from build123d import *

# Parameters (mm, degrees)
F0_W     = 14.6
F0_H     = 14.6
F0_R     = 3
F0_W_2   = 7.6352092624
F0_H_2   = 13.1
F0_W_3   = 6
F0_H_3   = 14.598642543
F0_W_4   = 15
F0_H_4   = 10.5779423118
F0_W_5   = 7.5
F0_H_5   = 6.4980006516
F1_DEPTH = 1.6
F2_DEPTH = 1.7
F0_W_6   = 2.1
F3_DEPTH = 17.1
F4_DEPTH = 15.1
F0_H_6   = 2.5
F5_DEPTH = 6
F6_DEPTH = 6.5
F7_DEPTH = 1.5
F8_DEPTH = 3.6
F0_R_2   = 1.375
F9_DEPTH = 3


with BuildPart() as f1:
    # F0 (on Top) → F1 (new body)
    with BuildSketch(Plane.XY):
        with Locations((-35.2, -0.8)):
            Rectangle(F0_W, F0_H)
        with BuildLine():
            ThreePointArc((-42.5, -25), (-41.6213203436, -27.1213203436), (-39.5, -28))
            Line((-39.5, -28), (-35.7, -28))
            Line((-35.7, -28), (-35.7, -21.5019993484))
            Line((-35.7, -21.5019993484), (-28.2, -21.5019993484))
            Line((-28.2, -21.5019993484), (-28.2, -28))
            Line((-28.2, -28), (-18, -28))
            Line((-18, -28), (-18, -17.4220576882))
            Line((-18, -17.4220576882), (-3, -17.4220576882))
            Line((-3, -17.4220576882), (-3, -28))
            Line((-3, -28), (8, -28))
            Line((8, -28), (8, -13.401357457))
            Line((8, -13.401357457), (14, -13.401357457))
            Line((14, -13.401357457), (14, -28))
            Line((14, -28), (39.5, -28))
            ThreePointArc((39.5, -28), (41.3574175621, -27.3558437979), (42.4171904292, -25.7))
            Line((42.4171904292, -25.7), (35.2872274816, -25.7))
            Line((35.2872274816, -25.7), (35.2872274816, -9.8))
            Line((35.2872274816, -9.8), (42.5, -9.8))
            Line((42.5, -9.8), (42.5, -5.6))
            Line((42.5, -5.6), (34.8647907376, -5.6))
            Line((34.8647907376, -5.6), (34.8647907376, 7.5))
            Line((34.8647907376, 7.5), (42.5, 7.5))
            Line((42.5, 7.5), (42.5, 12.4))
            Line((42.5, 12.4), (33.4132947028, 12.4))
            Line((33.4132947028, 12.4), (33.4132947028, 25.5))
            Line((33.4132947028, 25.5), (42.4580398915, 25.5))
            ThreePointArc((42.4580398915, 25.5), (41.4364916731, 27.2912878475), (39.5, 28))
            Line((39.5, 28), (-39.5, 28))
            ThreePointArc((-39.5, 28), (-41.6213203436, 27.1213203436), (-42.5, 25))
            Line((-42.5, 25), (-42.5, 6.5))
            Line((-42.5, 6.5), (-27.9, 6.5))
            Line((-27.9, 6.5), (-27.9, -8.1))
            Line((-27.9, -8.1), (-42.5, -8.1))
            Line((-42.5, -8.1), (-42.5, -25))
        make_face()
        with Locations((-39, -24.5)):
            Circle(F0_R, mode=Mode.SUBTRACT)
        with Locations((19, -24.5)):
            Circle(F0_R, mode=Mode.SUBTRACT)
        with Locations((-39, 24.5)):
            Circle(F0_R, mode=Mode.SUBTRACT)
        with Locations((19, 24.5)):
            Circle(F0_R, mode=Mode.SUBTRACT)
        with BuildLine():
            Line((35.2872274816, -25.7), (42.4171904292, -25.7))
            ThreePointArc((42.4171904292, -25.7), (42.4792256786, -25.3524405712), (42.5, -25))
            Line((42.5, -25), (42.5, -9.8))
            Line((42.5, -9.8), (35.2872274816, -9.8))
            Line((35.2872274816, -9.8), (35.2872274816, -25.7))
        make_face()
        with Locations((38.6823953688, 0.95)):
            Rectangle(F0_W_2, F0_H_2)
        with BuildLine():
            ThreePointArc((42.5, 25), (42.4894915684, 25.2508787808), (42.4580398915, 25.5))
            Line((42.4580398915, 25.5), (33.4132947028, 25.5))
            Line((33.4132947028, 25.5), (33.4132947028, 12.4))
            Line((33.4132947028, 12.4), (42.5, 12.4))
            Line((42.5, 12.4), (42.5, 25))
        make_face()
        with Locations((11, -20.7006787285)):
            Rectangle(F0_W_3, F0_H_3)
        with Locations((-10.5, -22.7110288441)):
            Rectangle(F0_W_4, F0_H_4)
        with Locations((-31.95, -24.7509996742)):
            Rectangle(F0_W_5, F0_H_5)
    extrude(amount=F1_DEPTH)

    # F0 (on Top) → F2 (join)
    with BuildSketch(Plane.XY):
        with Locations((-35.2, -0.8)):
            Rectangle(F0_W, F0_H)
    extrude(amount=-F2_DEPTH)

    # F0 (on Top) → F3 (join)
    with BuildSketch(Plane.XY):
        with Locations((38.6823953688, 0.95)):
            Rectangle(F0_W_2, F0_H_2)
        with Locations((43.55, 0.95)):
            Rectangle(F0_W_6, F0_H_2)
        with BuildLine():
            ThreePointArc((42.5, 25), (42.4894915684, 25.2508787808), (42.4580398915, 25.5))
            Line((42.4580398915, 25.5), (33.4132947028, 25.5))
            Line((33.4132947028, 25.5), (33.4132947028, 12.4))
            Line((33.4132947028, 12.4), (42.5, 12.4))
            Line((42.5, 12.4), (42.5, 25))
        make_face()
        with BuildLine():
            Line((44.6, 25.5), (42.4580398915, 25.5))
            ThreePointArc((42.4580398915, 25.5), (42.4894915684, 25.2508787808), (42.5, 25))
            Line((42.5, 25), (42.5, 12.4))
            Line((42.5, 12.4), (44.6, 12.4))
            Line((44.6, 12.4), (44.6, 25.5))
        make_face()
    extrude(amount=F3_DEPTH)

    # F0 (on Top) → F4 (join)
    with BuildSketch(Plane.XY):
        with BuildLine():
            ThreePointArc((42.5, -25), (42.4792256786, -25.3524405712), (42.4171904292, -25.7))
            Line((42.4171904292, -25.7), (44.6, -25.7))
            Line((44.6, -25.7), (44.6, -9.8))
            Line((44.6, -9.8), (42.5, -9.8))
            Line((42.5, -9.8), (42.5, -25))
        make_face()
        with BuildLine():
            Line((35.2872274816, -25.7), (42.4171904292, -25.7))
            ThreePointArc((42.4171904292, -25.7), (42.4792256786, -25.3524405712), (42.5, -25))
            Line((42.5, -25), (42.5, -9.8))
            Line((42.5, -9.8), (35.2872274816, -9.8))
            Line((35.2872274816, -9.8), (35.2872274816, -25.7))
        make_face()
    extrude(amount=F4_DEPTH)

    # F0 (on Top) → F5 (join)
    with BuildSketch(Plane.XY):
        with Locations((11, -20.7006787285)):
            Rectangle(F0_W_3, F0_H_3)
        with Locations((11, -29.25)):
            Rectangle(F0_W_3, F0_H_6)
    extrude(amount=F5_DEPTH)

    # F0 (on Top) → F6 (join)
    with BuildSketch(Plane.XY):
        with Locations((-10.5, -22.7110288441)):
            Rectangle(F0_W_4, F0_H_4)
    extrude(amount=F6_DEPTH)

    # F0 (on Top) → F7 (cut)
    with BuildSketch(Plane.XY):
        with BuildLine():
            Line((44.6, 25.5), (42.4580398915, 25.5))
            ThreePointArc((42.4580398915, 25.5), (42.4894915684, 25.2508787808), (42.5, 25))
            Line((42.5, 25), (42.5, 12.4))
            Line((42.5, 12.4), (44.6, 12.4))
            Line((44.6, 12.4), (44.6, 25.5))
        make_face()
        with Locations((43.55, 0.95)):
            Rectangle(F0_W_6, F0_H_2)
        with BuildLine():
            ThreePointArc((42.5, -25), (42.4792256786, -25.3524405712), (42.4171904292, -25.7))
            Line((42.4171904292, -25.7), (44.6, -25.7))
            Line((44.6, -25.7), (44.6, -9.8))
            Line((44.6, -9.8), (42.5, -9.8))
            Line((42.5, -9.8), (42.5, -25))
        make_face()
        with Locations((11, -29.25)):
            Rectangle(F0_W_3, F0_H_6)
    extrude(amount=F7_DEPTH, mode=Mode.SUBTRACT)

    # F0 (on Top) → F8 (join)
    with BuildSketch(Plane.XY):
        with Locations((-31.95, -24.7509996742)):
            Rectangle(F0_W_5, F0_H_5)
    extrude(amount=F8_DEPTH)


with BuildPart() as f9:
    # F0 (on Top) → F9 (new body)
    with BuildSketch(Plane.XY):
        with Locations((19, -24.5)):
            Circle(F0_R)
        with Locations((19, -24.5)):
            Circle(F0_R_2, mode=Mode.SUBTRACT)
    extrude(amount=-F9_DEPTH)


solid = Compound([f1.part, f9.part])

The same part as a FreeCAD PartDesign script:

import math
import FreeCAD as App
import Part
import Sketcher

V = App.Vector
Q = App.Units.Quantity


def add_polygon(sketch, points):
    """Adds a closed chain of lines whose ends are joined by coincident constraints."""
    first, n = sketch.GeometryCount, len(points)
    for a, b in zip(points, points[1:] + points[:1]):
        sketch.addGeometry(Part.LineSegment(App.Vector(*a, 0), App.Vector(*b, 0)), False)
    for i in range(n):
        sketch.addConstraint(Sketcher.Constraint("Coincident", first + i, 2, first + (i + 1) % n, 1))

doc = App.newDocument("Part")
body = doc.addObject("PartDesign::Body", "Body")

# Sketch on XY plane
sketch1 = doc.addObject("Sketcher::SketchObject", "Sketch")
body.addObject(sketch1)
sketch1.AttachmentSupport = (doc.XY_Plane, [""])
sketch1.MapMode = "FlatFace"
sketch1.addGeometry(Part.ArcOfCircle(Part.Circle(V(-39.5, -25, 0), V(0, 0, 1), 3), math.radians(180), math.radians(270)), False)
sketch1.addGeometry(Part.LineSegment(V(-39.5, -28, 0), V(39.5, -28, 0)), False)
sketch1.addGeometry(Part.ArcOfCircle(Part.Circle(V(39.5, -25, 0), V(0, 0, 1), 3), math.radians(-90), math.radians(-13.493399)), False)
sketch1.addGeometry(Part.ArcOfCircle(Part.Circle(V(39.5, -25, 0), V(0, 0, 1), 3), math.radians(-13.493399), math.radians(0)), False)
sketch1.addGeometry(Part.LineSegment(V(42.5, -25, 0), V(42.5, 25, 0)), False)
sketch1.addGeometry(Part.ArcOfCircle(Part.Circle(V(39.5, 25, 0), V(0, 0, 1), 3), math.radians(0), math.radians(9.594068)), False)
sketch1.addGeometry(Part.ArcOfCircle(Part.Circle(V(39.5, 25, 0), V(0, 0, 1), 3), math.radians(9.594068), math.radians(90)), False)
sketch1.addGeometry(Part.LineSegment(V(39.5, 28, 0), V(-39.5, 28, 0)), False)
sketch1.addGeometry(Part.ArcOfCircle(Part.Circle(V(-39.5, 25, 0), V(0, 0, 1), 3), math.radians(90), math.radians(180)), False)
sketch1.addGeometry(Part.LineSegment(V(-42.5, 25, 0), V(-42.5, -25, 0)), False)
sketch1.addGeometry(Part.Circle(V(-39, -24.5, 0), V(0, 0, 1), 3), False)
sketch1.addGeometry(Part.Circle(V(19, -24.5, 0), V(0, 0, 1), 3), False)
sketch1.addGeometry(Part.Circle(V(-39, 24.5, 0), V(0, 0, 1), 3), False)
sketch1.addGeometry(Part.Circle(V(19, 24.5, 0), V(0, 0, 1), 3), False)
sketch1.addConstraint(Sketcher.Constraint("Tangent", 0, 2, 1, 1))
sketch1.addConstraint(Sketcher.Constraint("Tangent", 1, 2, 2, 1))
sketch1.addConstraint(Sketcher.Constraint("Tangent", 2, 2, 3, 1))
sketch1.addConstraint(Sketcher.Constraint("Tangent", 3, 2, 4, 1))
sketch1.addConstraint(Sketcher.Constraint("Tangent", 4, 2, 5, 1))
sketch1.addConstraint(Sketcher.Constraint("Tangent", 5, 2, 6, 1))
sketch1.addConstraint(Sketcher.Constraint("Tangent", 6, 2, 7, 1))
sketch1.addConstraint(Sketcher.Constraint("Tangent", 7, 2, 8, 1))
sketch1.addConstraint(Sketcher.Constraint("Tangent", 8, 2, 9, 1))
sketch1.addConstraint(Sketcher.Constraint("Tangent", 9, 2, 0, 1))
sketch1.addConstraint(Sketcher.Constraint("Horizontal", 1))
sketch1.addConstraint(Sketcher.Constraint("Vertical", 4))
sketch1.addConstraint(Sketcher.Constraint("Horizontal", 7))
sketch1.addConstraint(Sketcher.Constraint("Vertical", 9))
sketch1.addConstraint(Sketcher.Constraint("Equal", 0, 2))
sketch1.addConstraint(Sketcher.Constraint("Equal", 2, 3))
sketch1.addConstraint(Sketcher.Constraint("Equal", 3, 5))
sketch1.addConstraint(Sketcher.Constraint("Equal", 5, 6))
sketch1.addConstraint(Sketcher.Constraint("Equal", 6, 8))
sketch1.addConstraint(Sketcher.Constraint("Equal", 8, 10))
sketch1.addConstraint(Sketcher.Constraint("Equal", 10, 11))
sketch1.addConstraint(Sketcher.Constraint("Equal", 11, 12))
sketch1.addConstraint(Sketcher.Constraint("Equal", 12, 13))
sketch1.addConstraint(Sketcher.Constraint("Symmetric", 0, 3, 5, 3, -1, 1))
sketch1.addConstraint(Sketcher.Constraint("Symmetric", 10, 3, 12, 3, -1))
sketch1.addConstraint(Sketcher.Constraint("Symmetric", 11, 3, 13, 3, -1))
sketch1.addConstraint(Sketcher.Constraint("Horizontal", 10, 3, 11, 3))
sketch1.addConstraint(Sketcher.Constraint("Diameter", 10, Q("6 mm")))
sketch1.addConstraint(Sketcher.Constraint("DistanceX", 1, 1, 1, 2, Q("79 mm")))
sketch1.addConstraint(Sketcher.Constraint("DistanceY", 4, 1, 4, 2, Q("50 mm")))
sketch1.addConstraint(Sketcher.Constraint("DistanceX", 10, 3, -1, 1, Q("39 mm")))
sketch1.addConstraint(Sketcher.Constraint("DistanceX", -1, 1, 11, 3, Q("19 mm")))
sketch1.addConstraint(Sketcher.Constraint("DistanceY", 10, 3, 12, 3, Q("49 mm")))
sketch1.addConstraint(Sketcher.Constraint("DistanceY", 13, 3, 5, 2, Q("1 mm")))
sketch1.addConstraint(Sketcher.Constraint("DistanceY", 2, 2, -1, 1, Q("25.7 mm")))
pad1 = doc.addObject("PartDesign::Pad", "Pad")
body.addObject(pad1)
pad1.Profile = sketch1
pad1.Length = 1.6

# Sketch on XY plane
sketch2 = doc.addObject("Sketcher::SketchObject", "Sketch001")
body.addObject(sketch2)
sketch2.AttachmentSupport = (doc.XY_Plane, [""])
sketch2.MapMode = "FlatFace"
add_polygon(sketch2, [(-42.5, 6.5), (-42.5, -8.1), (-27.9, -8.1), (-27.9, 6.5)])  # lines 0-3
sketch2.addConstraint(Sketcher.Constraint("Vertical", 0))
sketch2.addConstraint(Sketcher.Constraint("Horizontal", 1))
sketch2.addConstraint(Sketcher.Constraint("Vertical", 2))
sketch2.addConstraint(Sketcher.Constraint("Horizontal", 3))
sketch2.addConstraint(Sketcher.Constraint("Equal", 3, 0))
sketch2.addConstraint(Sketcher.Constraint("DistanceX", 1, 1, 1, 2, Q("14.6 mm")))
sketch2.addConstraint(Sketcher.Constraint("DistanceX", 0, 2, -1, 1, Q("42.5 mm")))
sketch2.addConstraint(Sketcher.Constraint("DistanceY", 0, 2, -1, 1, Q("8.1 mm")))
pad2 = doc.addObject("PartDesign::Pad", "Pad001")
body.addObject(pad2)
pad2.Profile = sketch2
pad2.Length = 1.7
pad2.Reversed = True

# Sketch on XY plane
sketch3 = doc.addObject("Sketcher::SketchObject", "Sketch002")
body.addObject(sketch3)
sketch3.AttachmentSupport = (doc.XY_Plane, [""])
sketch3.MapMode = "FlatFace"
add_polygon(sketch3, [(34.864791, 7.5), (34.864791, -5.6), (44.6, -5.6), (44.6, 7.5)])  # lines 0-3
add_polygon(sketch3, [(33.413295, 25.5), (33.413295, 12.4), (44.6, 12.4), (44.6, 25.5)])  # lines 4-7
sketch3.addConstraint(Sketcher.Constraint("Vertical", 0))
sketch3.addConstraint(Sketcher.Constraint("Horizontal", 1))
sketch3.addConstraint(Sketcher.Constraint("Vertical", 2))
sketch3.addConstraint(Sketcher.Constraint("Horizontal", 3))
sketch3.addConstraint(Sketcher.Constraint("Vertical", 4))
sketch3.addConstraint(Sketcher.Constraint("Horizontal", 5))
sketch3.addConstraint(Sketcher.Constraint("Vertical", 6))
sketch3.addConstraint(Sketcher.Constraint("Horizontal", 7))
sketch3.addConstraint(Sketcher.Constraint("Vertical", 2, 2, 5, 2))
sketch3.addConstraint(Sketcher.Constraint("Equal", 2, 4))
sketch3.addConstraint(Sketcher.Constraint("DistanceY", 0, 2, 0, 1, Q("13.1 mm")))
sketch3.addConstraint(Sketcher.Constraint("DistanceY", 0, 2, 4, 2, Q("18 mm")))
sketch3.addConstraint(Sketcher.Constraint("DistanceY", 0, 2, -1, 1, Q("5.6 mm")))
sketch3.addConstraint(Sketcher.Constraint("DistanceX", -1, 1, 1, 2, Q("44.6 mm")))
sketch3.addConstraint(Sketcher.Constraint("DistanceX", 1, 1, 1, 2, Q("9.735209 mm")))
sketch3.addConstraint(Sketcher.Constraint("DistanceX", 5, 1, 5, 2, Q("11.186705 mm")))
pad3 = doc.addObject("PartDesign::Pad", "Pad002")
body.addObject(pad3)
pad3.Profile = sketch3
pad3.Length = 17.1

# Sketch on XY plane
sketch4 = doc.addObject("Sketcher::SketchObject", "Sketch003")
body.addObject(sketch4)
sketch4.AttachmentSupport = (doc.XY_Plane, [""])
sketch4.MapMode = "FlatFace"
add_polygon(sketch4, [(44.6, -25.7), (44.6, -9.8), (35.287227, -9.8), (35.287227, -25.7)])  # lines 0-3
sketch4.addConstraint(Sketcher.Constraint("Vertical", 0))
sketch4.addConstraint(Sketcher.Constraint("Horizontal", 1))
sketch4.addConstraint(Sketcher.Constraint("Vertical", 2))
sketch4.addConstraint(Sketcher.Constraint("Horizontal", 3))
sketch4.addConstraint(Sketcher.Constraint("DistanceY", 0, 1, 0, 2, Q("15.9 mm")))
sketch4.addConstraint(Sketcher.Constraint("DistanceX", -1, 1, 0, 2, Q("44.6 mm")))
sketch4.addConstraint(Sketcher.Constraint("DistanceY", 0, 2, -1, 1, Q("9.8 mm")))
sketch4.addConstraint(Sketcher.Constraint("DistanceX", 1, 2, 1, 1, Q("9.312773 mm")))
pad4 = doc.addObject("PartDesign::Pad", "Pad003")
body.addObject(pad4)
pad4.Profile = sketch4
pad4.Length = 15.1

# Sketch on XY plane
sketch5 = doc.addObject("Sketcher::SketchObject", "Sketch004")
body.addObject(sketch5)
sketch5.AttachmentSupport = (doc.XY_Plane, [""])
sketch5.MapMode = "FlatFace"
add_polygon(sketch5, [(8, -13.401357), (8, -30.5), (14, -30.5), (14, -13.401357)])  # lines 0-3
sketch5.addConstraint(Sketcher.Constraint("Vertical", 0))
sketch5.addConstraint(Sketcher.Constraint("Horizontal", 1))
sketch5.addConstraint(Sketcher.Constraint("Vertical", 2))
sketch5.addConstraint(Sketcher.Constraint("Horizontal", 3))
sketch5.addConstraint(Sketcher.Constraint("DistanceX", 1, 1, 1, 2, Q("6 mm")))
sketch5.addConstraint(Sketcher.Constraint("DistanceX", -1, 1, 0, 2, Q("8 mm")))
sketch5.addConstraint(Sketcher.Constraint("DistanceY", 0, 2, -1, 1, Q("30.5 mm")))
sketch5.addConstraint(Sketcher.Constraint("DistanceY", 0, 2, 0, 1, Q("17.098643 mm")))
pad5 = doc.addObject("PartDesign::Pad", "Pad004")
body.addObject(pad5)
pad5.Profile = sketch5
pad5.Length = 6

# Sketch on XY plane
sketch6 = doc.addObject("Sketcher::SketchObject", "Sketch005")
body.addObject(sketch6)
sketch6.AttachmentSupport = (doc.XY_Plane, [""])
sketch6.MapMode = "FlatFace"
add_polygon(sketch6, [(-18, -17.422058), (-18, -28), (-3, -28), (-3, -17.422058)])  # lines 0-3
sketch6.addConstraint(Sketcher.Constraint("Vertical", 0))
sketch6.addConstraint(Sketcher.Constraint("Horizontal", 1))
sketch6.addConstraint(Sketcher.Constraint("Vertical", 2))
sketch6.addConstraint(Sketcher.Constraint("Horizontal", 3))
sketch6.addConstraint(Sketcher.Constraint("DistanceX", 1, 1, 1, 2, Q("15 mm")))
sketch6.addConstraint(Sketcher.Constraint("DistanceX", 0, 2, -1, 1, Q("18 mm")))
sketch6.addConstraint(Sketcher.Constraint("DistanceY", 0, 2, -1, 1, Q("28 mm")))
sketch6.addConstraint(Sketcher.Constraint("DistanceY", 0, 2, 0, 1, Q("10.577942 mm")))
pad6 = doc.addObject("PartDesign::Pad", "Pad005")
body.addObject(pad6)
pad6.Profile = sketch6
pad6.Length = 6.5

# Sketch on XY plane
sketch7 = doc.addObject("Sketcher::SketchObject", "Sketch006")
body.addObject(sketch7)
sketch7.AttachmentSupport = (doc.XY_Plane, [""])
sketch7.MapMode = "FlatFace"
sketch7.addGeometry(Part.LineSegment(V(44.6, 25.5, 0), V(42.45804, 25.5, 0)), False)  # 0
sketch7.addGeometry(Part.ArcOfCircle(Part.Circle(V(39.5, 25, 0), V(0, 0, 1), 3), math.radians(0), math.radians(9.594068)), False)  # 1
sketch7.addGeometry(Part.LineSegment(V(42.5, 25, 0), V(42.5, 12.4, 0)), False)  # 2
sketch7.addGeometry(Part.LineSegment(V(42.5, 12.4, 0), V(44.6, 12.4, 0)), False)  # 3
sketch7.addGeometry(Part.LineSegment(V(44.6, 12.4, 0), V(44.6, 25.5, 0)), False)  # 4
add_polygon(sketch7, [(42.5, 7.5), (42.5, -5.6), (44.6, -5.6), (44.6, 7.5)])  # lines 5-8
sketch7.addGeometry(Part.ArcOfCircle(Part.Circle(V(39.5, -25, 0), V(0, 0, 1), 3), math.radians(-13.493399), math.radians(0)), False)  # 9
sketch7.addGeometry(Part.LineSegment(V(42.41719, -25.7, 0), V(44.6, -25.7, 0)), False)  # 10
sketch7.addGeometry(Part.LineSegment(V(44.6, -25.7, 0), V(44.6, -9.8, 0)), False)  # 11
sketch7.addGeometry(Part.LineSegment(V(44.6, -9.8, 0), V(42.5, -9.8, 0)), False)  # 12
sketch7.addGeometry(Part.LineSegment(V(42.5, -9.8, 0), V(42.5, -25, 0)), False)  # 13
add_polygon(sketch7, [(8, -28), (8, -30.5), (14, -30.5), (14, -28)])  # lines 14-17
sketch7.addConstraint(Sketcher.Constraint("Coincident", 0, 2, 1, 2))
sketch7.addConstraint(Sketcher.Constraint("Tangent", 1, 1, 2, 1))
sketch7.addConstraint(Sketcher.Constraint("Coincident", 2, 2, 3, 1))
sketch7.addConstraint(Sketcher.Constraint("Coincident", 3, 2, 4, 1))
sketch7.addConstraint(Sketcher.Constraint("Coincident", 4, 2, 0, 1))
sketch7.addConstraint(Sketcher.Constraint("Coincident", 9, 1, 10, 1))
sketch7.addConstraint(Sketcher.Constraint("Coincident", 10, 2, 11, 1))
sketch7.addConstraint(Sketcher.Constraint("Coincident", 11, 2, 12, 1))
sketch7.addConstraint(Sketcher.Constraint("Coincident", 12, 2, 13, 1))
sketch7.addConstraint(Sketcher.Constraint("Tangent", 13, 2, 9, 2))
sketch7.addConstraint(Sketcher.Constraint("Horizontal", 0))
sketch7.addConstraint(Sketcher.Constraint("Vertical", 2))
sketch7.addConstraint(Sketcher.Constraint("Horizontal", 3))
sketch7.addConstraint(Sketcher.Constraint("Vertical", 4))
sketch7.addConstraint(Sketcher.Constraint("Vertical", 5))
sketch7.addConstraint(Sketcher.Constraint("Horizontal", 6))
sketch7.addConstraint(Sketcher.Constraint("Vertical", 7))
sketch7.addConstraint(Sketcher.Constraint("Horizontal", 8))
sketch7.addConstraint(Sketcher.Constraint("Horizontal", 10))
sketch7.addConstraint(Sketcher.Constraint("Vertical", 11))
sketch7.addConstraint(Sketcher.Constraint("Horizontal", 12))
sketch7.addConstraint(Sketcher.Constraint("Vertical", 13))
sketch7.addConstraint(Sketcher.Constraint("Vertical", 14))
sketch7.addConstraint(Sketcher.Constraint("Horizontal", 15))
sketch7.addConstraint(Sketcher.Constraint("Vertical", 16))
sketch7.addConstraint(Sketcher.Constraint("Horizontal", 17))
sketch7.addConstraint(Sketcher.Constraint("Equal", 1, 9))
sketch7.addConstraint(Sketcher.Constraint("Symmetric", 1, 3, 9, 3, -1))
sketch7.addConstraint(Sketcher.Constraint("Vertical", 2, 2, 5, 2))
sketch7.addConstraint(Sketcher.Constraint("Vertical", 4, 2, 6, 2))
sketch7.addConstraint(Sketcher.Constraint("Vertical", 7, 2, 10, 2))
sketch7.addConstraint(Sketcher.Constraint("Equal", 4, 5))
sketch7.addConstraint(Sketcher.Constraint("Radius", 1, Q("3 mm")))
sketch7.addConstraint(Sketcher.Constraint("DistanceX", 15, 1, 15, 2, Q("6 mm")))
sketch7.addConstraint(Sketcher.Constraint("DistanceX", 3, 1, 3, 2, Q("2.1 mm")))
sketch7.addConstraint(Sketcher.Constraint("DistanceY", 2, 2, 2, 1, Q("12.6 mm")))
sketch7.addConstraint(Sketcher.Constraint("DistanceY", 4, 1, 4, 2, Q("13.1 mm")))
sketch7.addConstraint(Sketcher.Constraint("DistanceY", 11, 1, 11, 2, Q("15.9 mm")))
sketch7.addConstraint(Sketcher.Constraint("DistanceY", 13, 2, 13, 1, Q("15.2 mm")))
sketch7.addConstraint(Sketcher.Constraint("DistanceY", 14, 2, 14, 1, Q("2.5 mm")))
sketch7.addConstraint(Sketcher.Constraint("DistanceY", -1, 1, 1, 3, Q("25 mm")))
sketch7.addConstraint(Sketcher.Constraint("DistanceX", -1, 1, 14, 2, Q("8 mm")))
sketch7.addConstraint(Sketcher.Constraint("DistanceY", 16, 2, -1, 1, Q("28 mm")))
sketch7.addConstraint(Sketcher.Constraint("DistanceY", 5, 2, 2, 2, Q("18 mm")))
sketch7.addConstraint(Sketcher.Constraint("DistanceX", -1, 1, 1, 3, Q("39.5 mm")))
pocket1 = doc.addObject("PartDesign::Pocket", "Pocket")
body.addObject(pocket1)
pocket1.Profile = sketch7
pocket1.Length = 1.5
pocket1.Reversed = True

# Sketch on XY plane
sketch8 = doc.addObject("Sketcher::SketchObject", "Sketch007")
body.addObject(sketch8)
sketch8.AttachmentSupport = (doc.XY_Plane, [""])
sketch8.MapMode = "FlatFace"
add_polygon(sketch8, [(-35.7, -21.501999), (-35.7, -28), (-28.2, -28), (-28.2, -21.501999)])  # lines 0-3
sketch8.addConstraint(Sketcher.Constraint("Vertical", 0))
sketch8.addConstraint(Sketcher.Constraint("Horizontal", 1))
sketch8.addConstraint(Sketcher.Constraint("Vertical", 2))
sketch8.addConstraint(Sketcher.Constraint("Horizontal", 3))
sketch8.addConstraint(Sketcher.Constraint("DistanceX", 1, 1, 1, 2, Q("7.5 mm")))
sketch8.addConstraint(Sketcher.Constraint("DistanceY", 0, 2, -1, 1, Q("28 mm")))
sketch8.addConstraint(Sketcher.Constraint("DistanceX", 0, 2, -1, 1, Q("35.7 mm")))
sketch8.addConstraint(Sketcher.Constraint("DistanceY", 0, 2, 0, 1, Q("6.498001 mm")))
pad7 = doc.addObject("PartDesign::Pad", "Pad006")
body.addObject(pad7)
pad7.Profile = sketch8
pad7.Length = 3.6
body2 = doc.addObject("PartDesign::Body", "Body001")

# Sketch on XY plane
sketch9 = doc.addObject("Sketcher::SketchObject", "Sketch008")
body2.addObject(sketch9)
sketch9.AttachmentSupport = (doc.getObject("XY_Plane001"), [""])
sketch9.MapMode = "FlatFace"
sketch9.addGeometry(Part.Circle(V(19, -24.5, 0), V(0, 0, 1), 3), False)
sketch9.addGeometry(Part.Circle(V(19, -24.5, 0), V(0, 0, 1), 1.375), False)
sketch9.addConstraint(Sketcher.Constraint("Coincident", 1, 3, 0, 3))
sketch9.addConstraint(Sketcher.Constraint("Diameter", 0, Q("6 mm")))
sketch9.addConstraint(Sketcher.Constraint("Diameter", 1, Q("2.75 mm")))
sketch9.addConstraint(Sketcher.Constraint("DistanceX", -1, 1, 0, 3, Q("19 mm")))
sketch9.addConstraint(Sketcher.Constraint("DistanceY", 0, 3, -1, 1, Q("24.5 mm")))
pad8 = doc.addObject("PartDesign::Pad", "Pad007")
body2.addObject(pad8)
pad8.Profile = sketch9
pad8.Length = 3
pad8.Reversed = True

doc.recompute()
